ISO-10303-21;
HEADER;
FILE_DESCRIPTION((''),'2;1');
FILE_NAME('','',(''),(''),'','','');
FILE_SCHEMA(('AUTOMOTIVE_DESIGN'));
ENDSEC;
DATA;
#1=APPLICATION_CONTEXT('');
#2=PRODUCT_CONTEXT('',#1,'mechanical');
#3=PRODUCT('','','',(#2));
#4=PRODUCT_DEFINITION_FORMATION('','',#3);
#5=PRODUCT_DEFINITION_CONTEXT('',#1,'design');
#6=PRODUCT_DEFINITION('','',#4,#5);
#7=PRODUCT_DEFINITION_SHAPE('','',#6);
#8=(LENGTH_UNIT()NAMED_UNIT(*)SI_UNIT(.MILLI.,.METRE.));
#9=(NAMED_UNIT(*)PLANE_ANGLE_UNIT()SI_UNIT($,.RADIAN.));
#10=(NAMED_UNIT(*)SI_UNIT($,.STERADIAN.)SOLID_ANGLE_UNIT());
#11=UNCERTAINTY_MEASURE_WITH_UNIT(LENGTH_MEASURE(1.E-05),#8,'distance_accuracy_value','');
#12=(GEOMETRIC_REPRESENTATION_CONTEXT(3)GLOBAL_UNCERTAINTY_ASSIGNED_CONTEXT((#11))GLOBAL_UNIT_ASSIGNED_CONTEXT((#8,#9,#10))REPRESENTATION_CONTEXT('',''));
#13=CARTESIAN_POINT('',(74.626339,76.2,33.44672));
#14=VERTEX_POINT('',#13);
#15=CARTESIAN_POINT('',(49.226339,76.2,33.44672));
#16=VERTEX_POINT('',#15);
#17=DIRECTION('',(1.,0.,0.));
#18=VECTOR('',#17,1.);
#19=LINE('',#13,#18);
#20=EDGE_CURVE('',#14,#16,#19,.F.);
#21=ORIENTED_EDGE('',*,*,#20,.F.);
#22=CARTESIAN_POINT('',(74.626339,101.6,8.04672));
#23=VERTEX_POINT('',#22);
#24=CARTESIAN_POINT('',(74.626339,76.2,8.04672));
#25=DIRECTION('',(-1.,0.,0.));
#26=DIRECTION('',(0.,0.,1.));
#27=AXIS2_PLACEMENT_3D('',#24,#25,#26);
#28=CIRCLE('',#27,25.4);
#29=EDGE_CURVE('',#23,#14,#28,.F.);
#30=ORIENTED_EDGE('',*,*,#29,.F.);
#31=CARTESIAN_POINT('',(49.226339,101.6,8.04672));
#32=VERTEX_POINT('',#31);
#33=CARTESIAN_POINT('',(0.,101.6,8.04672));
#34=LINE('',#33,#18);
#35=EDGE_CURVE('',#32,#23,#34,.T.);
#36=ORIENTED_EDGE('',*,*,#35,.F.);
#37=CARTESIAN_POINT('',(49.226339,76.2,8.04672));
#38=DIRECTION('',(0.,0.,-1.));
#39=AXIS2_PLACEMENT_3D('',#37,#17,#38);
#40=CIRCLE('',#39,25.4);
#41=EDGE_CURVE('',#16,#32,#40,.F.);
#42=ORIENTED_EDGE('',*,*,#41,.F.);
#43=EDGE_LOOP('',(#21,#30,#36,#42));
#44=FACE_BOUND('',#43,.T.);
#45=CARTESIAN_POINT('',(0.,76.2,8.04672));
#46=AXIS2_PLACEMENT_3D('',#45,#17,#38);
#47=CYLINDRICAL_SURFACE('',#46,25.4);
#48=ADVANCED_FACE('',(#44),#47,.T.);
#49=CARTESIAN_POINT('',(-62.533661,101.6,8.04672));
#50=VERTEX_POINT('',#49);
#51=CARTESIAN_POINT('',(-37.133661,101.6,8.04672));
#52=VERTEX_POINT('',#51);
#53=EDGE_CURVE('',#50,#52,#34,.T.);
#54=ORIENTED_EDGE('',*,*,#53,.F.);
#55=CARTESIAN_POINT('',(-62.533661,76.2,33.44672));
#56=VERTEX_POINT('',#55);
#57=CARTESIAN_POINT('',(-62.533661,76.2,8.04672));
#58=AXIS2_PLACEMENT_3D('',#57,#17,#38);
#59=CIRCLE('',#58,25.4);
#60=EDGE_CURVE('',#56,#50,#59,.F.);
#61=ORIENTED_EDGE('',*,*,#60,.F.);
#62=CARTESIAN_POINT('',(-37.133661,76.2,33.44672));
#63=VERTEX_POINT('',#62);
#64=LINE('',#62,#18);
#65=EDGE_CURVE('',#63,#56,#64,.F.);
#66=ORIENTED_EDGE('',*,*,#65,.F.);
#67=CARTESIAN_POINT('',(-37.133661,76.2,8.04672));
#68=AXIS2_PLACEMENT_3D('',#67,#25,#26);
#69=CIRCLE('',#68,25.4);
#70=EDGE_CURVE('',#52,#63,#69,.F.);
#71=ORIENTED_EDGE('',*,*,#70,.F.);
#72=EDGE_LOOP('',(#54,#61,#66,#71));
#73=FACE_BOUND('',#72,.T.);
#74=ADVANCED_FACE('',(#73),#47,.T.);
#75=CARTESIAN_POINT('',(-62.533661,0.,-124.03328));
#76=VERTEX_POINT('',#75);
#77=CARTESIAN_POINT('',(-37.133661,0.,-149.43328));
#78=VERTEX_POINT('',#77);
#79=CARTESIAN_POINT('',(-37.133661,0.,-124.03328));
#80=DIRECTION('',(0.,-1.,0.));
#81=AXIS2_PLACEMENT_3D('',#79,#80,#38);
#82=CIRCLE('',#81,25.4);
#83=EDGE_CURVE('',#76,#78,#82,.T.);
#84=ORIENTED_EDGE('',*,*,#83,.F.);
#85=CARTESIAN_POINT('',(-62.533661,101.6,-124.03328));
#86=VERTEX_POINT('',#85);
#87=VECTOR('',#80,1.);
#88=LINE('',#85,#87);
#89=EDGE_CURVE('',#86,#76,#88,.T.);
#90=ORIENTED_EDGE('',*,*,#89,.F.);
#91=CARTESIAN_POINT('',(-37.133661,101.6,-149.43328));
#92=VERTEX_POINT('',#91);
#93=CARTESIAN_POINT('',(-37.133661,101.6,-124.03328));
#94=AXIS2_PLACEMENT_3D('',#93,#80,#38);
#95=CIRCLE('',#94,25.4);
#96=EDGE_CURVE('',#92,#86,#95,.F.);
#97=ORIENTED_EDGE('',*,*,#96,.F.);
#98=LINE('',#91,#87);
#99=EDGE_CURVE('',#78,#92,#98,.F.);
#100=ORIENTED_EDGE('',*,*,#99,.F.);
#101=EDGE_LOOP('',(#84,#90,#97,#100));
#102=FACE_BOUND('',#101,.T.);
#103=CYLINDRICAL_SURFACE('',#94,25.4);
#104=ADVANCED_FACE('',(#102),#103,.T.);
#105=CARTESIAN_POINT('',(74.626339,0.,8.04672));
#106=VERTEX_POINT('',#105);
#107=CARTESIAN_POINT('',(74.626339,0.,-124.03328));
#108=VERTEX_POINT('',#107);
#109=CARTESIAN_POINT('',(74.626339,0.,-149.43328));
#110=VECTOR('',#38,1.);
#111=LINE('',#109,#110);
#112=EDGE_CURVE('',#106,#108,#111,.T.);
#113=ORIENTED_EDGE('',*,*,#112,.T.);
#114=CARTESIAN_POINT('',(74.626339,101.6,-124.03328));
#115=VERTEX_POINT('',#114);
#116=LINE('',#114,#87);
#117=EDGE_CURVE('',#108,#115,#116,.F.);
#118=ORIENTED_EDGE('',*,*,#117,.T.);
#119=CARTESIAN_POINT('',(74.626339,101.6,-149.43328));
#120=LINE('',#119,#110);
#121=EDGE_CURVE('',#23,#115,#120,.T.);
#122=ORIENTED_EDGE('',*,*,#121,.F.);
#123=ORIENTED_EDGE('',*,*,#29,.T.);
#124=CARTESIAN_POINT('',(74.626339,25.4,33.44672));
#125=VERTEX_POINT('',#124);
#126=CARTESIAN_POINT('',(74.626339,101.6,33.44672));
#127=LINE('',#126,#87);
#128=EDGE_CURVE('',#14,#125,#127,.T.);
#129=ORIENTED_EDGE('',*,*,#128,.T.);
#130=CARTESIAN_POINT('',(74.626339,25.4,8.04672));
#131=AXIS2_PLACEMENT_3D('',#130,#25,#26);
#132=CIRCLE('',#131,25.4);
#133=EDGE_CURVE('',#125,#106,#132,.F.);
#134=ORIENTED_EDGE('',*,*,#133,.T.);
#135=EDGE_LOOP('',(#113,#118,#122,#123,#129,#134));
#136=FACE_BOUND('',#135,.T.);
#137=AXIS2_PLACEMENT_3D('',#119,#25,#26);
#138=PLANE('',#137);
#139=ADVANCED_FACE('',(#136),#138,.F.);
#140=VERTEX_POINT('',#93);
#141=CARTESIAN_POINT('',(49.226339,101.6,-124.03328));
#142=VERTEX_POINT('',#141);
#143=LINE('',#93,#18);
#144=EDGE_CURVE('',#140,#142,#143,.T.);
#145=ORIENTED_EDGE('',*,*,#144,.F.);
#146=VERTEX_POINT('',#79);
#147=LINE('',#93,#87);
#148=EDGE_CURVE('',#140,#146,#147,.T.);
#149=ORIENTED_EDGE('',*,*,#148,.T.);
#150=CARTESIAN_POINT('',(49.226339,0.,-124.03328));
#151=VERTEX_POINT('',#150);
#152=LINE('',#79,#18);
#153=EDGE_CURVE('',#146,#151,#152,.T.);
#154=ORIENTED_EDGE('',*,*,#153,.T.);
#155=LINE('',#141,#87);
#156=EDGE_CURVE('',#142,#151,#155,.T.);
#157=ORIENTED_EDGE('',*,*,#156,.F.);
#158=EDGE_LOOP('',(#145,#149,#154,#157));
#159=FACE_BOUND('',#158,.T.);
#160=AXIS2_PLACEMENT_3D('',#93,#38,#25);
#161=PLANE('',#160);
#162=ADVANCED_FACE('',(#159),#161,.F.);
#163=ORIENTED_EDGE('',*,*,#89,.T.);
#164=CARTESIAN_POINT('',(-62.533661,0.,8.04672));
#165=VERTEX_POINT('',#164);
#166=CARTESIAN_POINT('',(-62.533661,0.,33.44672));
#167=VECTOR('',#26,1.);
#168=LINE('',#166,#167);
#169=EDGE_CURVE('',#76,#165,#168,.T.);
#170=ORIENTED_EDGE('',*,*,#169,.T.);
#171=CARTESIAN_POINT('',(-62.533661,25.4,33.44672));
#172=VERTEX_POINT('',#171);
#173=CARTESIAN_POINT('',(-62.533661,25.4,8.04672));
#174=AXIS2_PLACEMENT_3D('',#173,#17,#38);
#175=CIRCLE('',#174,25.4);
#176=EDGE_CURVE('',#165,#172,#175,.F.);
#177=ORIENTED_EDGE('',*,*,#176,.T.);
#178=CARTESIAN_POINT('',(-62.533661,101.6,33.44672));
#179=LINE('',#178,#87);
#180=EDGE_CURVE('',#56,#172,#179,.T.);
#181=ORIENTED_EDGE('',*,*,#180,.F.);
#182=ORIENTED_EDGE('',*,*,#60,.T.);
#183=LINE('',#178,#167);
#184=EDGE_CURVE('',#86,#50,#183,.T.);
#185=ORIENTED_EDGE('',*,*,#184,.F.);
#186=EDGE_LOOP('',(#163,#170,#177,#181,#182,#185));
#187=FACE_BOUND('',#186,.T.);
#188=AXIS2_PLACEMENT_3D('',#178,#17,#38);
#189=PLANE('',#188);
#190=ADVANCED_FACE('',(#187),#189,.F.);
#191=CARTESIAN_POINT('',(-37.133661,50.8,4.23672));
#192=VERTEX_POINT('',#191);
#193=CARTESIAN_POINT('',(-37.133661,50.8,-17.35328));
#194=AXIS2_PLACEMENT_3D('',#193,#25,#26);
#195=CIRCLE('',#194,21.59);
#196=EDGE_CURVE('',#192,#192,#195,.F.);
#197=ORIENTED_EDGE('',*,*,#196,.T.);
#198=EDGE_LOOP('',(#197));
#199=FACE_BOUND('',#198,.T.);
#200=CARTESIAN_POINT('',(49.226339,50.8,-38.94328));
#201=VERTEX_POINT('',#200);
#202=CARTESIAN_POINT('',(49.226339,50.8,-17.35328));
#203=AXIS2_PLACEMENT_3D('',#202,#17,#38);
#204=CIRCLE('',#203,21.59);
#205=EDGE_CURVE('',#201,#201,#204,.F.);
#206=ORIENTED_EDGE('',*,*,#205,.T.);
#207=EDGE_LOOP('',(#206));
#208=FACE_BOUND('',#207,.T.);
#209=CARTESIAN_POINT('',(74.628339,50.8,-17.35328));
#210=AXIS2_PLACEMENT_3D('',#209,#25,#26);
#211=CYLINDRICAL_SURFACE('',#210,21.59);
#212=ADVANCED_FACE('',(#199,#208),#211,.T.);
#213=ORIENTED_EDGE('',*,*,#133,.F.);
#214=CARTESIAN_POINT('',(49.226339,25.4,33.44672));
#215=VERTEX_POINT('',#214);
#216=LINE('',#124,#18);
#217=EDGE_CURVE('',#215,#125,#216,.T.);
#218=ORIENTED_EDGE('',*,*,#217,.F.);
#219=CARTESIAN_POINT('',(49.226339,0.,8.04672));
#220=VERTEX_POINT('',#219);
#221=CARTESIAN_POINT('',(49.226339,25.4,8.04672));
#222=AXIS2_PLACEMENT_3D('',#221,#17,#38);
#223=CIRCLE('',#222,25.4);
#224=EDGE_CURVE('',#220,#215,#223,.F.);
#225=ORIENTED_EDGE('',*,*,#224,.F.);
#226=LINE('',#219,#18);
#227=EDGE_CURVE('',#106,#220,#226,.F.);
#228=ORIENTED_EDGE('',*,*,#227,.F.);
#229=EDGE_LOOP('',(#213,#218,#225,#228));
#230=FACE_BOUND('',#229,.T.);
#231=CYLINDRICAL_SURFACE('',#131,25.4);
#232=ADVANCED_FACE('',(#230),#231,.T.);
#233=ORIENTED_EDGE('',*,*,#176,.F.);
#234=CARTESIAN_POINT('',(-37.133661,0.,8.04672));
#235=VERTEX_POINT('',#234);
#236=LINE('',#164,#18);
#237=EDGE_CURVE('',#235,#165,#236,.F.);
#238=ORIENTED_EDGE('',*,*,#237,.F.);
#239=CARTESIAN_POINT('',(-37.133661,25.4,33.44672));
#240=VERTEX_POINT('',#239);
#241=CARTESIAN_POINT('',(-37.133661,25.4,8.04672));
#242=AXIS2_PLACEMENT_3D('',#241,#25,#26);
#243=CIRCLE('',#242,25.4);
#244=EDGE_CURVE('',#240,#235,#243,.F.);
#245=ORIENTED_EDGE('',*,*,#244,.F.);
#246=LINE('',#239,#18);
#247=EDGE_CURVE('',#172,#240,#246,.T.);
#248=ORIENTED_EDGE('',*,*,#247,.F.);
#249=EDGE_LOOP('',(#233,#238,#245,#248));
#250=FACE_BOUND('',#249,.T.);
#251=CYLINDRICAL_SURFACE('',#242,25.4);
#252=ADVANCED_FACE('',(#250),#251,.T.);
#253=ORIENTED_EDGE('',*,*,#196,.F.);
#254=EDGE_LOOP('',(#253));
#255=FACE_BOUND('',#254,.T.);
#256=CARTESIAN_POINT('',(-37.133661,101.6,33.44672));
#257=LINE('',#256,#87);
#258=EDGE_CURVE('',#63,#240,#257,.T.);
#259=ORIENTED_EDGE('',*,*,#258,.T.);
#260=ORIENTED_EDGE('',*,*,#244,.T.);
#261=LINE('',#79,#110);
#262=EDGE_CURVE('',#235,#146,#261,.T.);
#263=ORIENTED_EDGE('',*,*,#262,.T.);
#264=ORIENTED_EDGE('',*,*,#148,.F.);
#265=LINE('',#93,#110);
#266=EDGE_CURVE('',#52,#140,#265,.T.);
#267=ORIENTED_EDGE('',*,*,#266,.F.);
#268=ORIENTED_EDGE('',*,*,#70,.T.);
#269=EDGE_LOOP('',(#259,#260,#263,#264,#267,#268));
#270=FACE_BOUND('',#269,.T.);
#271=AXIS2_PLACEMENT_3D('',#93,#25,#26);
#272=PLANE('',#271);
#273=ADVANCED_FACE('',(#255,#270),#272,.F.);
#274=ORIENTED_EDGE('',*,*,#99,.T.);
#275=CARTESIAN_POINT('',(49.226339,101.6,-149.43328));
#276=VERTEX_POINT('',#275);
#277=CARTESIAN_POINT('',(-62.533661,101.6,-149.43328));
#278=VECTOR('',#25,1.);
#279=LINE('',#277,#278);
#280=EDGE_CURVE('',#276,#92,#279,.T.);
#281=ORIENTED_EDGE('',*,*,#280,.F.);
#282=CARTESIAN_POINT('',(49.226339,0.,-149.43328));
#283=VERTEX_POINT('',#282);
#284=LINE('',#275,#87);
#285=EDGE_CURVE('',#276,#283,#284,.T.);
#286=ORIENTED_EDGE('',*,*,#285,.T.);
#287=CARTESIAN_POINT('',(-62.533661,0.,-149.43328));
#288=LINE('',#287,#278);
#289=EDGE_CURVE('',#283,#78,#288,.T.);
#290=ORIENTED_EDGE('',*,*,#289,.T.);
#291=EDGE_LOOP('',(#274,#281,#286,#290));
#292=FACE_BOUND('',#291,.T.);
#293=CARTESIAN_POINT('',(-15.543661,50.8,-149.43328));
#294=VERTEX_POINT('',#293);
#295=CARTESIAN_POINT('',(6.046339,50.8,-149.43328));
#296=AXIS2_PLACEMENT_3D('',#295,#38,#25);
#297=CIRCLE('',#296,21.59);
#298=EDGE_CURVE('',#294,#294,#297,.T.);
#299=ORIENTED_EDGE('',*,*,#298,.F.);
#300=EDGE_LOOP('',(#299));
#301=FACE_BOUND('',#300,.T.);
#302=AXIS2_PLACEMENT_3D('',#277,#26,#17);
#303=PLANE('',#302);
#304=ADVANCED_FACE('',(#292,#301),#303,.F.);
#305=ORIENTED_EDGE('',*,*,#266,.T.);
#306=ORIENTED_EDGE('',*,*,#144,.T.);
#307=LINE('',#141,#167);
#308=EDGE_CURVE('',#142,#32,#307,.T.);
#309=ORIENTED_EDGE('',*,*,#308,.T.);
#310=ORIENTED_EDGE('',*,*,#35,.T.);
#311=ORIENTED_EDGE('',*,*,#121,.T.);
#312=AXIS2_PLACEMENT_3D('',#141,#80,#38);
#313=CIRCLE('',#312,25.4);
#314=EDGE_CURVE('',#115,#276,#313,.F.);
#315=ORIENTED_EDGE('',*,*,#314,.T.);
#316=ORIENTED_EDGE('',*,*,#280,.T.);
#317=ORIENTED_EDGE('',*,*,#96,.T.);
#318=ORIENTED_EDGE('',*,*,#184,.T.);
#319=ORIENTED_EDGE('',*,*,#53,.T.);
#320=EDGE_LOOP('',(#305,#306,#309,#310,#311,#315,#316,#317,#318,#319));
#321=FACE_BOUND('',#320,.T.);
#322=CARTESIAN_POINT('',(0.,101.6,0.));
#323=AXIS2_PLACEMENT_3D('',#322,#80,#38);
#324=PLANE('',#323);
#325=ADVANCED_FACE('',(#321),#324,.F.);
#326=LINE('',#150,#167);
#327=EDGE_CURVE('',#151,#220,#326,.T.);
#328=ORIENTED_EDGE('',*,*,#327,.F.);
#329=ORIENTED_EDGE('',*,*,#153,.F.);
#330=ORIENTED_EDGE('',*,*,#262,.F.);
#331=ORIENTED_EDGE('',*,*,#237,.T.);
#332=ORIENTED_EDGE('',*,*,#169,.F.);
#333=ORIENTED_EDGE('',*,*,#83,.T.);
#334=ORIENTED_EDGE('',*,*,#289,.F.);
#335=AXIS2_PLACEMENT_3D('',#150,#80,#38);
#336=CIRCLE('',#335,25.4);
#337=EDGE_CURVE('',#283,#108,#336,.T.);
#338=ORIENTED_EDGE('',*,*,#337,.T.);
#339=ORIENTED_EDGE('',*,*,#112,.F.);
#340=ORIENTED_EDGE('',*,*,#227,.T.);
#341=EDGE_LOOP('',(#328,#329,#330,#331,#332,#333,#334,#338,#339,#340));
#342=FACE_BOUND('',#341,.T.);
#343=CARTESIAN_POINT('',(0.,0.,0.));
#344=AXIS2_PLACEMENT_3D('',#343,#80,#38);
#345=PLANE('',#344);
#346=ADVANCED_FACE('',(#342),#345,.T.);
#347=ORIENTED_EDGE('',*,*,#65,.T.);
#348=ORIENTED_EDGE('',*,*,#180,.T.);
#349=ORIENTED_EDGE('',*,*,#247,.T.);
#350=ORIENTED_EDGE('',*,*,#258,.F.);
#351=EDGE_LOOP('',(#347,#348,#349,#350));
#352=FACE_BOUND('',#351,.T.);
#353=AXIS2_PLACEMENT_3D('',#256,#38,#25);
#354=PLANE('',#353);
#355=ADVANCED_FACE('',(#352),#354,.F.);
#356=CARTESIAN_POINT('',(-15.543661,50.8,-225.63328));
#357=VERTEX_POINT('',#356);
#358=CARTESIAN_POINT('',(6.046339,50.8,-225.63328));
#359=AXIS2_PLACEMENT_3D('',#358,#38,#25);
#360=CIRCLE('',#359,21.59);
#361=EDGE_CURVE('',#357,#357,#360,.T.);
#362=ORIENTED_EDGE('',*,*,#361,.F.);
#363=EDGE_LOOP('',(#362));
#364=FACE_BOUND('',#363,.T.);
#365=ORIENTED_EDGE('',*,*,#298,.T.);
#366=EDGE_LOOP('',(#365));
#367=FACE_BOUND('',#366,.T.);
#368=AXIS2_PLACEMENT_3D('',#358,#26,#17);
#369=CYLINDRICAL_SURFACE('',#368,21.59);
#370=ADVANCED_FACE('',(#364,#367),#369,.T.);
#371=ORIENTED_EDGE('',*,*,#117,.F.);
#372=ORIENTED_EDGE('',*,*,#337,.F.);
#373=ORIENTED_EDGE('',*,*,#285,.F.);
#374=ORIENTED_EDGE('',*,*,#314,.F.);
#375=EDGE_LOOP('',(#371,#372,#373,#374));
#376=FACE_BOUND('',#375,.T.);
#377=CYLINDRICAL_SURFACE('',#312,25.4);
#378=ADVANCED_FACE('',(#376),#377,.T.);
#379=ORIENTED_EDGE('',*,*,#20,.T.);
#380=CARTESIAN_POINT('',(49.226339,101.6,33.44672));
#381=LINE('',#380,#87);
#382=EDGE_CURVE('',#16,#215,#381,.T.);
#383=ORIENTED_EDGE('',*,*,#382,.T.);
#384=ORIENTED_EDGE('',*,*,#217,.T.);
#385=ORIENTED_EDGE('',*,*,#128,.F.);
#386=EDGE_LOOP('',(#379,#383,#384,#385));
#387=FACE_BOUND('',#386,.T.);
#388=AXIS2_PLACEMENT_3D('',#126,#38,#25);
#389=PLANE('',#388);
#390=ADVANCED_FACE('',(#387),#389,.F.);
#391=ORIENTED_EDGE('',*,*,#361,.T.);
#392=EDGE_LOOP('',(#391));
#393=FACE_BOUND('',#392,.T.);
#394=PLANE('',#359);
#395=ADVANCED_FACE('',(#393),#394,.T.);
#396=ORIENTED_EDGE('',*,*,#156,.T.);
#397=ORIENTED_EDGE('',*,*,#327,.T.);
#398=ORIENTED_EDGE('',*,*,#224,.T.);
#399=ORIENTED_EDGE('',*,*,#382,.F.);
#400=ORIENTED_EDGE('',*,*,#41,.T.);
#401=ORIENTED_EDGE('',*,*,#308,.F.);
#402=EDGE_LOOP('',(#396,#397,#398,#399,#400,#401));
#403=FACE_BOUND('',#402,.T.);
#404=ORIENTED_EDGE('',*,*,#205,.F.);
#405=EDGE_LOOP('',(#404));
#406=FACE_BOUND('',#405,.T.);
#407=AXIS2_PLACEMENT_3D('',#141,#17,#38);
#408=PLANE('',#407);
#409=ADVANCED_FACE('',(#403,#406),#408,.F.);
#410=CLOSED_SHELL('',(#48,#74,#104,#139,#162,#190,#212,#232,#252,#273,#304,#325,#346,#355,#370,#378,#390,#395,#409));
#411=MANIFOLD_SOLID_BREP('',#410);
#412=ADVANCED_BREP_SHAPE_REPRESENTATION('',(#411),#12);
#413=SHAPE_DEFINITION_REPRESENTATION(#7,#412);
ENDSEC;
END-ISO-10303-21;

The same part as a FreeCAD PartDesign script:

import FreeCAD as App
import Part
import Sketcher
Q = App.Units.Quantity


def edges_at(feature, points):
    """Names of the edges that pass closest to the given points."""
    edges = feature.Shape.Edges
    near = lambda p: min(range(len(edges)), key=lambda i: edges[i].distToShape(Part.Vertex(*p))[0])
    return sorted({f"Edge{near(p) + 1}" for p in points})


def add_polygon(sketch, points):
    """Adds a closed chain of lines whose ends are joined by coincident constraints."""
    first, n = sketch.GeometryCount, len(points)
    for a, b in zip(points, points[1:] + points[:1]):
        sketch.addGeometry(Part.LineSegment(App.Vector(*a, 0), App.Vector(*b, 0)), False)
    for i in range(n):
        sketch.addConstraint(Sketcher.Constraint("Coincident", first + i, 2, first + (i + 1) % n, 1))

doc = App.newDocument("Part")
body = doc.addObject("PartDesign::Body", "Body")

# Sketch on XZ plane
sketch1 = doc.addObject("Sketcher::SketchObject", "Sketch")
body.addObject(sketch1)
sketch1.AttachmentSupport = (doc.XZ_Plane, [""])
sketch1.MapMode = "FlatFace"
add_polygon(sketch1, [(-63, 33), (-37, 33), (-37, -124), (49, -124), (49, 33), (75, 33), (75, -149), (-63, -149)])  # lines 0-7
sketch1.addConstraint(Sketcher.Constraint("Horizontal", 0))
sketch1.addConstraint(Sketcher.Constraint("Vertical", 1))
sketch1.addConstraint(Sketcher.Constraint("Horizontal", 2))
sketch1.addConstraint(Sketcher.Constraint("Vertical", 3))
sketch1.addConstraint(Sketcher.Constraint("Horizontal", 4))
sketch1.addConstraint(Sketcher.Constraint("Vertical", 5))
sketch1.addConstraint(Sketcher.Constraint("Horizontal", 6))
sketch1.addConstraint(Sketcher.Constraint("Vertical", 7))
sketch1.addConstraint(Sketcher.Constraint("Horizontal", 0, 2, 3, 2))
sketch1.addConstraint(Sketcher.Constraint("Equal", 0, 4))
sketch1.addConstraint(Sketcher.Constraint("DistanceX", 0, 1, 0, 2, Q("1 in")))
sketch1.addConstraint(Sketcher.Constraint("DistanceX", 2, 1, 2, 2, Q("3.4 in")))
sketch1.addConstraint(Sketcher.Constraint("DistanceY", 1, 2, 1, 1, Q("6.2 in")))
sketch1.addConstraint(Sketcher.Constraint("DistanceY", 5, 2, 5, 1, Q("7.2 in")))
sketch1.addConstraint(Sketcher.Constraint("DistanceY", -1, 1, 0, 2, Q("1.3168 in")))
sketch1.addConstraint(Sketcher.Constraint("DistanceX", 0, 2, -1, 1, Q("37.133661 mm")))
pad1 = doc.addObject("PartDesign::Pad", "Pad")
body.addObject(pad1)
pad1.Profile = sketch1
pad1.Length = Q("4 in")
pad1.Reversed = True

# Sketch on YZ plane
sketch2 = doc.addObject("Sketcher::SketchObject", "Sketch001")
body.addObject(sketch2)
sketch2.AttachmentSupport = (doc.YZ_Plane, [""])
sketch2.MapMode = "FlatFace"
sketch2.AttachmentOffset = App.Placement(App.Vector(0, 0, -37.133661), App.Rotation())
sketch2.addGeometry(Part.Circle(App.Vector(51, -17, 0), App.Vector(0, 0, 1), 22), False)
sketch2.addConstraint(Sketcher.Constraint("Diameter", 0, Q("1.7 in")))
sketch2.addConstraint(Sketcher.Constraint("DistanceX", -1, 1, 0, 3, Q("2 in")))
sketch2.addConstraint(Sketcher.Constraint("DistanceY", 0, 3, -1, 1, Q("0.6832 in")))
pad2 = doc.addObject("PartDesign::Pad", "Pad001")
body.addObject(pad2)
pad2.Profile = sketch2
pad2.Type = "UpToFirst"

# Sketch on XY plane
sketch3 = doc.addObject("Sketcher::SketchObject", "Sketch002")
body.addObject(sketch3)
sketch3.AttachmentSupport = (doc.XY_Plane, [""])
sketch3.MapMode = "FlatFace"
sketch3.AttachmentOffset = App.Placement(App.Vector(0, 0, -5.8832 * 25.4), App.Rotation())
sketch3.addGeometry(Part.Circle(App.Vector(6, 51, 0), App.Vector(0, 0, 1), 22), False)
sketch3.addConstraint(Sketcher.Constraint("Diameter", 0, Q("1.7 in")))
sketch3.addConstraint(Sketcher.Constraint("DistanceY", -1, 1, 0, 3, Q("2 in")))
sketch3.addConstraint(Sketcher.Constraint("DistanceX", -1, 1, 0, 3, Q("6.046339 mm")))
pad3 = doc.addObject("PartDesign::Pad", "Pad002")
body.addObject(pad3)
pad3.Profile = sketch3
pad3.Length = Q("3 in")
pad3.Reversed = True
doc.recompute()

fillet = doc.addObject("PartDesign::Fillet", "Fillet")
body.addObject(fillet)
fillet.Base = (pad3, edges_at(pad3, [(-49.834, 101.6, 33.447), (-49.834, 0, 33.447)]))
fillet.Radius = Q("1 in")
doc.recompute()

fillet2 = doc.addObject("PartDesign::Fillet", "Fillet001")
body.addObject(fillet2)
fillet2.Base = (fillet, edges_at(fillet, [(-62.534, 50.8, -149.433)]))
fillet2.Radius = Q("1 in")
doc.recompute()

fillet3 = doc.addObject("PartDesign::Fillet", "Fillet002")
body.addObject(fillet3)
fillet3.Base = (fillet2, edges_at(fillet2, [(61.926, 0, 33.447), (61.926, 101.6, 33.447)]))
fillet3.Radius = Q("1 in")
doc.recompute()

fillet4 = doc.addObject("PartDesign::Fillet", "Fillet003")
body.addObject(fillet4)
fillet4.Base = (fillet3, edges_at(fillet3, [(74.626, 50.8, -149.433)]))
fillet4.Radius = Q("1 in")

doc.recompute()
